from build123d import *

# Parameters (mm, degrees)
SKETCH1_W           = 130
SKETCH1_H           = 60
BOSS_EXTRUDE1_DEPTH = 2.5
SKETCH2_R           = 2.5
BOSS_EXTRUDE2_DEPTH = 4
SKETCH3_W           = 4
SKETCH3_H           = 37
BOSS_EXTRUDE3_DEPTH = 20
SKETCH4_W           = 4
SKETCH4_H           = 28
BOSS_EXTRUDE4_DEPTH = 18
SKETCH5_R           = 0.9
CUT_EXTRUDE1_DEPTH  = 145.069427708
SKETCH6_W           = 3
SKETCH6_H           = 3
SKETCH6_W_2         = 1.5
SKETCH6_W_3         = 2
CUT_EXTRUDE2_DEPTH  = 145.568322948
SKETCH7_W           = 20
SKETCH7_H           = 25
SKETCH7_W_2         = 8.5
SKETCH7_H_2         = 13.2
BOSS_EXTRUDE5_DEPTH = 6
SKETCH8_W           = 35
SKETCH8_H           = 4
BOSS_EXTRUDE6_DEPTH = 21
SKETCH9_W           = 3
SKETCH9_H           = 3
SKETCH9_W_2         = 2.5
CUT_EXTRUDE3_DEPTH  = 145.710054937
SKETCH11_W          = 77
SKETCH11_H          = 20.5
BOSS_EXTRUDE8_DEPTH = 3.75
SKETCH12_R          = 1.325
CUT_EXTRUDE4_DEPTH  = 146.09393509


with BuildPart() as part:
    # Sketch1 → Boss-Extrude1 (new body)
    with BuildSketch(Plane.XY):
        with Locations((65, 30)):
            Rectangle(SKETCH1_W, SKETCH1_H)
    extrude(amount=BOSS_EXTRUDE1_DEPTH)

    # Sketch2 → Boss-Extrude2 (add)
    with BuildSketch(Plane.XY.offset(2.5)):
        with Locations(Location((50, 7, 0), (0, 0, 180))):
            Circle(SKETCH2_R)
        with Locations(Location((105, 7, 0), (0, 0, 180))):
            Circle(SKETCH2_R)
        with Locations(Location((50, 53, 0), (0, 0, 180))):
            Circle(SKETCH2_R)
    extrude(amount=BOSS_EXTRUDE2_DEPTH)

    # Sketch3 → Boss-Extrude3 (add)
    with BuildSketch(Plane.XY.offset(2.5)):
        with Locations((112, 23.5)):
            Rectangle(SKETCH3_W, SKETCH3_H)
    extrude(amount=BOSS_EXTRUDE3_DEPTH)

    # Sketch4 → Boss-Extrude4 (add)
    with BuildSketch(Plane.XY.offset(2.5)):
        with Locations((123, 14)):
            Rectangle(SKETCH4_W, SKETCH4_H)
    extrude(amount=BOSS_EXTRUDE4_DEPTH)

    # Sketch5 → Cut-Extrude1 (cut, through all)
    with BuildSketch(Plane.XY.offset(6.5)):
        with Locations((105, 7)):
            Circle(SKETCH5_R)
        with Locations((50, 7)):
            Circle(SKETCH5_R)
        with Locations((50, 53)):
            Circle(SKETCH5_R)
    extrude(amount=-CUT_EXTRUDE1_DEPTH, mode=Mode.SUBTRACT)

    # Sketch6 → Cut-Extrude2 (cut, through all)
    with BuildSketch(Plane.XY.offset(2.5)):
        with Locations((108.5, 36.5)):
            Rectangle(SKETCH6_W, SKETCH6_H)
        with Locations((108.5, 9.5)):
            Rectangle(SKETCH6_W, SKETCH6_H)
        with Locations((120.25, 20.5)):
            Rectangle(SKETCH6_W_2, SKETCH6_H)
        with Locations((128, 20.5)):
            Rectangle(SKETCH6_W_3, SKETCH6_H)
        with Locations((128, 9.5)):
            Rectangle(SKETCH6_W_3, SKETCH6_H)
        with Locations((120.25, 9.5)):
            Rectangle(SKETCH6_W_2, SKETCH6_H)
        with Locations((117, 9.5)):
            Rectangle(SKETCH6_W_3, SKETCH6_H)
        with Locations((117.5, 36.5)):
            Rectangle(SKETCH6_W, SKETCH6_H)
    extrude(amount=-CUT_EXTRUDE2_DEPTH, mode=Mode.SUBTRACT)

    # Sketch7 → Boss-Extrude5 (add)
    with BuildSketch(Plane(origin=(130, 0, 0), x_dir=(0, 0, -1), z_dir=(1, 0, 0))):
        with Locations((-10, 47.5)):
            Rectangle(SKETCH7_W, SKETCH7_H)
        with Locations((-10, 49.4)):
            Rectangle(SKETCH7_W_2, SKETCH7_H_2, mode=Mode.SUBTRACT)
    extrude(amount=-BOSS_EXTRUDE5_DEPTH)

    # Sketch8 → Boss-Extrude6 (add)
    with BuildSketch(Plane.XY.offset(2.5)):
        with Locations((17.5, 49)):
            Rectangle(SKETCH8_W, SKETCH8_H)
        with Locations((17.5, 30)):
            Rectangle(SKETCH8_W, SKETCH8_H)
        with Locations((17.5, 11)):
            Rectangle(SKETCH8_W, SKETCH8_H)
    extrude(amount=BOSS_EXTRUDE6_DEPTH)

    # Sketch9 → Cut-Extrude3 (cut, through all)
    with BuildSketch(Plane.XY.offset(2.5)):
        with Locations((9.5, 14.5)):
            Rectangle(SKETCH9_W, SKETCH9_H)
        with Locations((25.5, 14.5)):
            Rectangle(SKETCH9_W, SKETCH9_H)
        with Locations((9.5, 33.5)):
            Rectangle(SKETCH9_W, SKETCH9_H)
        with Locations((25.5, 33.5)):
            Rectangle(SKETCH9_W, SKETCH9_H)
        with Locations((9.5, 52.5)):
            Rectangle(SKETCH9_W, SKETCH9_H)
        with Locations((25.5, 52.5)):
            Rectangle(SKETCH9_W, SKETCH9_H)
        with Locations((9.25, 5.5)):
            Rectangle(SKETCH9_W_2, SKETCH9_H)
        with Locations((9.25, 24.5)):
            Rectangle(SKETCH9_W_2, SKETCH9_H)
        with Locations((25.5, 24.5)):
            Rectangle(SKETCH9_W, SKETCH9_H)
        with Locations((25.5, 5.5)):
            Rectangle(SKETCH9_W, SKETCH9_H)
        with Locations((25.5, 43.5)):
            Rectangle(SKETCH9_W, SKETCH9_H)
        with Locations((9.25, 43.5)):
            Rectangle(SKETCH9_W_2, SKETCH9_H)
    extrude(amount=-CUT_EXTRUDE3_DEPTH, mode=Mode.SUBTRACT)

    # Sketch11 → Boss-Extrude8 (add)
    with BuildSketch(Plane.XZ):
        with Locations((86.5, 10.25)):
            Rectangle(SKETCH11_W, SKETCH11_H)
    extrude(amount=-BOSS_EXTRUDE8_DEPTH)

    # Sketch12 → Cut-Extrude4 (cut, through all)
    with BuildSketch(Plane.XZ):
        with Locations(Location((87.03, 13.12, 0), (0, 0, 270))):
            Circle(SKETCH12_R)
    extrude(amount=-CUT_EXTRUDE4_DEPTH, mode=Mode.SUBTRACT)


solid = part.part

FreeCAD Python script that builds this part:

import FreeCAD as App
import Part
import Sketcher

V = App.Vector

doc = App.newDocument("Part")
body = doc.addObject("PartDesign::Body", "Body")

sketch1 = body.newObject("Sketcher::SketchObject", "Sketch")
sketch1.AttachmentSupport = (doc.getObject("XY_Plane"), [""])
sketch1.MapMode = "FlatFace"
sketch1.addGeometry(Part.LineSegment(V(0, 60, 0), V(0, 0, 0)), False)
sketch1.addGeometry(Part.LineSegment(V(0, 0, 0), V(130, 0, 0)), False)
sketch1.addGeometry(Part.LineSegment(V(130, 0, 0), V(130, 60, 0)), False)
sketch1.addGeometry(Part.LineSegment(V(130, 60, 0), V(0, 60, 0)), False)
sketch1.addConstraint(Sketcher.Constraint("Coincident", 0, 2, 1, 1))
sketch1.addConstraint(Sketcher.Constraint("Coincident", 1, 2, 2, 1))
sketch1.addConstraint(Sketcher.Constraint("Coincident", 2, 2, 3, 1))
sketch1.addConstraint(Sketcher.Constraint("Coincident", 3, 2, 0, 1))
sketch1.addConstraint(Sketcher.Constraint("Vertical", 0))
sketch1.addConstraint(Sketcher.Constraint("Horizontal", 1))
sketch1.addConstraint(Sketcher.Constraint("Vertical", 2))
sketch1.addConstraint(Sketcher.Constraint("Horizontal", 3))
sketch1.addConstraint(Sketcher.Constraint("Coincident", 0, 2, -1, 1))
sketch1.addConstraint(Sketcher.Constraint("DistanceX", 1, 1, 1, 2, 130.0))
sketch1.addConstraint(Sketcher.Constraint("DistanceY", 0, 2, 0, 1, 60.0))
pad1 = body.newObject("PartDesign::Pad", "Pad")
pad1.Profile = sketch1
pad1.Length = 2.5

sketch2 = body.newObject("Sketcher::SketchObject", "Sketch001")
sketch2.AttachmentSupport = (doc.getObject("XY_Plane"), [""])
sketch2.MapMode = "FlatFace"
sketch2.AttachmentOffset = App.Placement(V(0, 0, 2.5), App.Rotation())
sketch2.addGeometry(Part.Circle(V(50, 7, 0), V(0, 0, 1), 2.5), False)
sketch2.addGeometry(Part.Circle(V(105, 7, 0), V(0, 0, 1), 2.5), False)
sketch2.addGeometry(Part.Circle(V(50, 53, 0), V(0, 0, 1), 2.5), False)
sketch2.addConstraint(Sketcher.Constraint("Equal", 0, 1))
sketch2.addConstraint(Sketcher.Constraint("Equal", 1, 2))
sketch2.addConstraint(Sketcher.Constraint("Horizontal", 0, 3, 1, 3))
sketch2.addConstraint(Sketcher.Constraint("Vertical", 0, 3, 2, 3))
sketch2.addConstraint(Sketcher.Constraint("Diameter", 0, 5.0))
sketch2.addConstraint(Sketcher.Constraint("DistanceX", -1, 1, 0, 3, 50.0))
sketch2.addConstraint(Sketcher.Constraint("DistanceY", -1, 1, 0, 3, 7.0))
sketch2.addConstraint(Sketcher.Constraint("DistanceX", -1, 1, 1, 3, 105.0))
sketch2.addConstraint(Sketcher.Constraint("DistanceY", -1, 1, 2, 3, 53.0))
pad2 = body.newObject("PartDesign::Pad", "Pad001")
pad2.Profile = sketch2
pad2.Length = 4

sketch3 = body.newObject("Sketcher::SketchObject", "Sketch002")
sketch3.AttachmentSupport = (doc.getObject("XY_Plane"), [""])
sketch3.MapMode = "FlatFace"
sketch3.AttachmentOffset = App.Placement(V(0, 0, 2.5), App.Rotation())
sketch3.addGeometry(Part.LineSegment(V(110, 42, 0), V(110, 5, 0)), False)
sketch3.addGeometry(Part.LineSegment(V(110, 5, 0), V(114, 5, 0)), False)
sketch3.addGeometry(Part.LineSegment(V(114, 5, 0), V(114, 42, 0)), False)
sketch3.addGeometry(Part.LineSegment(V(114, 42, 0), V(110, 42, 0)), False)
sketch3.addConstraint(Sketcher.Constraint("Coincident", 0, 2, 1, 1))
sketch3.addConstraint(Sketcher.Constraint("Coincident", 1, 2, 2, 1))
sketch3.addConstraint(Sketcher.Constraint("Coincident", 2, 2, 3, 1))
sketch3.addConstraint(Sketcher.Constraint("Coincident", 3, 2, 0, 1))
sketch3.addConstraint(Sketcher.Constraint("Vertical", 0))
sketch3.addConstraint(Sketcher.Constraint("Horizontal", 1))
sketch3.addConstraint(Sketcher.Constraint("Vertical", 2))
sketch3.addConstraint(Sketcher.Constraint("Horizontal", 3))
sketch3.addConstraint(Sketcher.Constraint("DistanceX", 1, 1, 1, 2, 4.0))
sketch3.addConstraint(Sketcher.Constraint("DistanceY", 0, 2, 0, 1, 37.0))
sketch3.addConstraint(Sketcher.Constraint("DistanceX", -1, 1, 0, 2, 110.0))
sketch3.addConstraint(Sketcher.Constraint("DistanceY", -1, 1, 0, 2, 5.0))
pad3 = body.newObject("PartDesign::Pad", "Pad002")
pad3.Profile = sketch3
pad3.Length = 20

sketch4 = body.newObject("Sketcher::SketchObject", "Sketch003")
sketch4.AttachmentSupport = (doc.getObject("XY_Plane"), [""])
sketch4.MapMode = "FlatFace"
sketch4.AttachmentOffset = App.Placement(V(0, 0, 2.5), App.Rotation())
sketch4.addGeometry(Part.LineSegment(V(121, 28, 0), V(121, 0, 0)), False)
sketch4.addGeometry(Part.LineSegment(V(121, 0, 0), V(125, 0, 0)), False)
sketch4.addGeometry(Part.LineSegment(V(125, 0, 0), V(125, 28, 0)), False)
sketch4.addGeometry(Part.LineSegment(V(125, 28, 0), V(121, 28, 0)), False)
sketch4.addConstraint(Sketcher.Constraint("Coincident", 0, 2, 1, 1))
sketch4.addConstraint(Sketcher.Constraint("Coincident", 1, 2, 2, 1))
sketch4.addConstraint(Sketcher.Constraint("Coincident", 2, 2, 3, 1))
sketch4.addConstraint(Sketcher.Constraint("Coincident", 3, 2, 0, 1))
sketch4.addConstraint(Sketcher.Constraint("Vertical", 0))
sketch4.addConstraint(Sketcher.Constraint("Horizontal", 1))
sketch4.addConstraint(Sketcher.Constraint("Vertical", 2))
sketch4.addConstraint(Sketcher.Constraint("Horizontal", 3))
sketch4.addConstraint(Sketcher.Constraint("PointOnObject", 0, 2, -1))
sketch4.addConstraint(Sketcher.Constraint("DistanceX", 1, 1, 1, 2, 4.0))
sketch4.addConstraint(Sketcher.Constraint("DistanceY", 0, 2, 0, 1, 28.0))
sketch4.addConstraint(Sketcher.Constraint("DistanceX", -1, 1, 0, 2, 121.0))
pad4 = body.newObject("PartDesign::Pad", "Pad003")
pad4.Profile = sketch4
pad4.Length = 18

sketch5 = body.newObject("Sketcher::SketchObject", "Sketch004")
sketch5.AttachmentSupport = (doc.getObject("XY_Plane"), [""])
sketch5.MapMode = "FlatFace"
sketch5.AttachmentOffset = App.Placement(V(0, 0, 6.5), App.Rotation())
sketch5.addGeometry(Part.Circle(V(105, 7, 0), V(0, 0, 1), 0.9), False)
sketch5.addGeometry(Part.Circle(V(50, 7, 0), V(0, 0, 1), 0.9), False)
sketch5.addGeometry(Part.Circle(V(50, 53, 0), V(0, 0, 1), 0.9), False)
sketch5.addConstraint(Sketcher.Constraint("Equal", 0, 1))
sketch5.addConstraint(Sketcher.Constraint("Equal", 1, 2))
sketch5.addConstraint(Sketcher.Constraint("Horizontal", 0, 3, 1, 3))
sketch5.addConstraint(Sketcher.Constraint("Vertical", 1, 3, 2, 3))
sketch5.addConstraint(Sketcher.Constraint("Diameter", 0, 1.8))
sketch5.addConstraint(Sketcher.Constraint("DistanceX", -1, 1, 0, 3, 105.0))
sketch5.addConstraint(Sketcher.Constraint("DistanceY", -1, 1, 0, 3, 7.0))
sketch5.addConstraint(Sketcher.Constraint("DistanceX", -1, 1, 1, 3, 50.0))
sketch5.addConstraint(Sketcher.Constraint("DistanceY", -1, 1, 2, 3, 53.0))
pocket1 = body.newObject("PartDesign::Pocket", "Pocket")
pocket1.Profile = sketch5
pocket1.Type = "ThroughAll"

sketch6 = body.newObject("Sketcher::SketchObject", "Sketch005")
sketch6.AttachmentSupport = (doc.getObject("XY_Plane"), [""])
sketch6.MapMode = "FlatFace"
sketch6.AttachmentOffset = App.Placement(V(0, 0, 2.5), App.Rotation())
sketch6.addGeometry(Part.LineSegment(V(107, 38, 0), V(107, 35, 0)), False)
sketch6.addGeometry(Part.LineSegment(V(107, 35, 0), V(110, 35, 0)), False)
sketch6.addGeometry(Part.LineSegment(V(110, 35, 0), V(110, 38, 0)), False)
sketch6.addGeometry(Part.LineSegment(V(110, 38, 0), V(107, 38, 0)), False)
sketch6.addGeometry(Part.LineSegment(V(107, 11, 0), V(107, 8, 0)), False)
sketch6.addGeometry(Part.LineSegment(V(107, 8, 0), V(110, 8, 0)), False)
sketch6.addGeometry(Part.LineSegment(V(110, 8, 0), V(110, 11, 0)), False)
sketch6.addGeometry(Part.LineSegment(V(110, 11, 0), V(107, 11, 0)), False)
sketch6.addGeometry(Part.LineSegment(V(119.5, 22, 0), V(119.5, 19, 0)), False)
sketch6.addGeometry(Part.LineSegment(V(119.5, 19, 0), V(121, 19, 0)), False)
sketch6.addGeometry(Part.LineSegment(V(121, 19, 0), V(121, 22, 0)), False)
sketch6.addGeometry(Part.LineSegment(V(121, 22, 0), V(119.5, 22, 0)), False)
sketch6.addGeometry(Part.LineSegment(V(127, 22, 0), V(127, 19, 0)), False)
sketch6.addGeometry(Part.LineSegment(V(127, 19, 0), V(129, 19, 0)), False)
sketch6.addGeometry(Part.LineSegment(V(129, 19, 0), V(129, 22, 0)), False)
sketch6.addGeometry(Part.LineSegment(V(129, 22, 0), V(127, 22, 0)), False)
sketch6.addGeometry(Part.LineSegment(V(127, 11, 0), V(127, 8, 0)), False)
sketch6.addGeometry(Part.LineSegment(V(127, 8, 0), V(129, 8, 0)), False)
sketch6.addGeometry(Part.LineSegment(V(129, 8, 0), V(129, 11, 0)), False)
sketch6.addGeometry(Part.LineSegment(V(129, 11, 0), V(127, 11, 0)), False)
sketch6.addGeometry(Part.LineSegment(V(119.5, 11, 0), V(119.5, 8, 0)), False)
sketch6.addGeometry(Part.LineSegment(V(119.5, 8, 0), V(121, 8, 0)), False)
sketch6.addGeometry(Part.LineSegment(V(121, 8, 0), V(121, 11, 0)), False)
sketch6.addGeometry(Part.LineSegment(V(121, 11, 0), V(119.5, 11, 0)), False)
sketch6.addGeometry(Part.LineSegment(V(116, 11, 0), V(116, 8, 0)), False)
sketch6.addGeometry(Part.LineSegment(V(116, 8, 0), V(118, 8, 0)), False)
sketch6.addGeometry(Part.LineSegment(V(118, 8, 0), V(118, 11, 0)), False)
sketch6.addGeometry(Part.LineSegment(V(118, 11, 0), V(116, 11, 0)), False)
sketch6.addGeometry(Part.LineSegment(V(116, 38, 0), V(116, 35, 0)), False)
sketch6.addGeometry(Part.LineSegment(V(116, 35, 0), V(119, 35, 0)), False)
sketch6.addGeometry(Part.LineSegment(V(119, 35, 0), V(119, 38, 0)), False)
sketch6.addGeometry(Part.LineSegment(V(119, 38, 0), V(116, 38, 0)), False)
sketch6.addConstraint(Sketcher.Constraint("Coincident", 0, 2, 1, 1))
sketch6.addConstraint(Sketcher.Constraint("Coincident", 1, 2, 2, 1))
sketch6.addConstraint(Sketcher.Constraint("Coincident", 2, 2, 3, 1))
sketch6.addConstraint(Sketcher.Constraint("Coincident", 3, 2, 0, 1))
sketch6.addConstraint(Sketcher.Constraint("Coincident", 4, 2, 5, 1))
sketch6.addConstraint(Sketcher.Constraint("Coincident", 5, 2, 6, 1))
sketch6.addConstraint(Sketcher.Constraint("Coincident", 6, 2, 7, 1))
sketch6.addConstraint(Sketcher.Constraint("Coincident", 7, 2, 4, 1))
sketch6.addConstraint(Sketcher.Constraint("Coincident", 8, 2, 9, 1))
sketch6.addConstraint(Sketcher.Constraint("Coincident", 9, 2, 10, 1))
sketch6.addConstraint(Sketcher.Constraint("Coincident", 10, 2, 11, 1))
sketch6.addConstraint(Sketcher.Constraint("Coincident", 11, 2, 8, 1))
sketch6.addConstraint(Sketcher.Constraint("Coincident", 12, 2, 13, 1))
sketch6.addConstraint(Sketcher.Constraint("Coincident", 13, 2, 14, 1))
sketch6.addConstraint(Sketcher.Constraint("Coincident", 14, 2, 15, 1))
sketch6.addConstraint(Sketcher.Constraint("Coincident", 15, 2, 12, 1))
sketch6.addConstraint(Sketcher.Constraint("Coincident", 16, 2, 17, 1))
sketch6.addConstraint(Sketcher.Constraint("Coincident", 17, 2, 18, 1))
sketch6.addConstraint(Sketcher.Constraint("Coincident", 18, 2, 19, 1))
sketch6.addConstraint(Sketcher.Constraint("Coincident", 19, 2, 16, 1))
sketch6.addConstraint(Sketcher.Constraint("Coincident", 20, 2, 21, 1))
sketch6.addConstraint(Sketcher.Constraint("Coincident", 21, 2, 22, 1))
sketch6.addConstraint(Sketcher.Constraint("Coincident", 22, 2, 23, 1))
sketch6.addConstraint(Sketcher.Constraint("Coincident", 23, 2, 20, 1))
sketch6.addConstraint(Sketcher.Constraint("Coincident", 24, 2, 25, 1))
sketch6.addConstraint(Sketcher.Constraint("Coincident", 25, 2, 26, 1))
sketch6.addConstraint(Sketcher.Constraint("Coincident", 26, 2, 27, 1))
sketch6.addConstraint(Sketcher.Constraint("Coincident", 27, 2, 24, 1))
sketch6.addConstraint(Sketcher.Constraint("Coincident", 28, 2, 29, 1))
sketch6.addConstraint(Sketcher.Constraint("Coincident", 29, 2, 30, 1))
sketch6.addConstraint(Sketcher.Constraint("Coincident", 30, 2, 31, 1))
sketch6.addConstraint(Sketcher.Constraint("Coincident", 31, 2, 28, 1))
sketch6.addConstraint(Sketcher.Constraint("Vertical", 0))
sketch6.addConstraint(Sketcher.Constraint("Horizontal", 1))
sketch6.addConstraint(Sketcher.Constraint("Vertical", 2))
sketch6.addConstraint(Sketcher.Constraint("Horizontal", 3))
sketch6.addConstraint(Sketcher.Constraint("Vertical", 4))
sketch6.addConstraint(Sketcher.Constraint("Horizontal", 5))
sketch6.addConstraint(Sketcher.Constraint("Vertical", 6))
sketch6.addConstraint(Sketcher.Constraint("Horizontal", 7))
sketch6.addConstraint(Sketcher.Constraint("Vertical", 8))
sketch6.addConstraint(Sketcher.Constraint("Horizontal", 9))
sketch6.addConstraint(Sketcher.Constraint("Vertical", 10))
sketch6.addConstraint(Sketcher.Constraint("Horizontal", 11))
sketch6.addConstraint(Sketcher.Constraint("Vertical", 12))
sketch6.addConstraint(Sketcher.Constraint("Horizontal", 13))
sketch6.addConstraint(Sketcher.Constraint("Vertical", 14))
sketch6.addConstraint(Sketcher.Constraint("Horizontal", 15))
sketch6.addConstraint(Sketcher.Constraint("Vertical", 16))
sketch6.addConstraint(Sketcher.Constraint("Horizontal", 17))
sketch6.addConstraint(Sketcher.Constraint("Vertical", 18))
sketch6.addConstraint(Sketcher.Constraint("Horizontal", 19))
sketch6.addConstraint(Sketcher.Constraint("Vertical", 20))
sketch6.addConstraint(Sketcher.Constraint("Horizontal", 21))
sketch6.addConstraint(Sketcher.Constraint("Vertical", 22))
sketch6.addConstraint(Sketcher.Constraint("Horizontal", 23))
sketch6.addConstraint(Sketcher.Constraint("Vertical", 24))
sketch6.addConstraint(Sketcher.Constraint("Horizontal", 25))
sketch6.addConstraint(Sketcher.Constraint("Vertical", 26))
sketch6.addConstraint(Sketcher.Constraint("Horizontal", 27))
sketch6.addConstraint(Sketcher.Constraint("Vertical", 28))
sketch6.addConstraint(Sketcher.Constraint("Horizontal", 29))
sketch6.addConstraint(Sketcher.Constraint("Vertical", 30))
sketch6.addConstraint(Sketcher.Constraint("Horizontal", 31))
sketch6.addConstraint(Sketcher.Constraint("Horizontal", 9, 2, 12, 2))
sketch6.addConstraint(Sketcher.Constraint("Horizontal", 11, 2, 14, 2))
sketch6.addConstraint(Sketcher.Constraint("Horizontal", 5, 2, 16, 2))
sketch6.addConstraint(Sketcher.Constraint("Horizontal", 7, 2, 18, 2))
sketch6.addConstraint(Sketcher.Constraint("Horizontal", 17, 2, 20, 2))
sketch6.addConstraint(Sketcher.Constraint("Horizontal", 19, 2, 22, 2))
sketch6.addConstraint(Sketcher.Constraint("Horizontal", 21, 2, 24, 2))
sketch6.addConstraint(Sketcher.Constraint("Horizontal", 23, 2, 26, 2))
sketch6.addConstraint(Sketcher.Constraint("Horizontal", 1, 2, 28, 2))
sketch6.addConstraint(Sketcher.Constraint("Horizontal", 3, 2, 30, 2))
sketch6.addConstraint(Sketcher.Constraint("Vertical", 3, 2, 4, 2))
sketch6.addConstraint(Sketcher.Constraint("Vertical", 2, 2, 5, 2))
sketch6.addConstraint(Sketcher.Constraint("Vertical", 15, 2, 16, 2))
sketch6.addConstraint(Sketcher.Constraint("Vertical", 14, 2, 17, 2))
sketch6.addConstraint(Sketcher.Constraint("Vertical", 11, 2, 20, 2))
sketch6.addConstraint(Sketcher.Constraint("Vertical", 10, 2, 21, 2))
sketch6.addConstraint(Sketcher.Constraint("Vertical", 27, 2, 28, 2))
sketch6.addConstraint(Sketcher.Constraint("Equal", 19, 25))
sketch6.addConstraint(Sketcher.Constraint("Equal", 7, 29))
sketch6.addConstraint(Sketcher.Constraint("Equal", 31, 0))
sketch6.addConstraint(Sketcher.Constraint("Equal", 2, 4))
sketch6.addConstraint(Sketcher.Constraint("Equal", 6, 8))
sketch6.addConstraint(Sketcher.Constraint("DistanceX", 1, 1, 1, 2, 3.0))
sketch6.addConstraint(Sketcher.Constraint("DistanceX", 13, 1, 13, 2, 2.0))
sketch6.addConstraint(Sketcher.Constraint("DistanceX", 9, 1, 9, 2, 1.5))
sketch6.addConstraint(Sketcher.Constraint("DistanceX", -1, 1, 0, 2, 107.0))
sketch6.addConstraint(Sketcher.Constraint("DistanceY", -1, 1, 0, 2, 35.0))
sketch6.addConstraint(Sketcher.Constraint("DistanceY", -1, 1, 4, 2, 8.0))
sketch6.addConstraint(Sketcher.Constraint("DistanceY", -1, 1, 8, 2, 19.0))
sketch6.addConstraint(Sketcher.Constraint("DistanceX", -1, 1, 9, 2, 121.0))
sketch6.addConstraint(Sketcher.Constraint("DistanceX", -1, 1, 12, 2, 127.0))
sketch6.addConstraint(Sketcher.Constraint("DistanceX", -1, 1, 24, 2, 116.0))
pocket2 = body.newObject("PartDesign::Pocket", "Pocket001")
pocket2.Profile = sketch6
pocket2.Type = "ThroughAll"

sketch7 = body.newObject("Sketcher::SketchObject", "Sketch006")
sketch7.AttachmentSupport = (doc.getObject("YZ_Plane"), [""])
sketch7.MapMode = "FlatFace"
sketch7.AttachmentOffset = App.Placement(V(0, 0, 130), App.Rotation())
sketch7.addGeometry(Part.LineSegment(V(60, 20, 0), V(35, 20, 0)), False)
sketch7.addGeometry(Part.LineSegment(V(35, 20, 0), V(35, 0, 0)), False)
sketch7.addGeometry(Part.LineSegment(V(35, 0, 0), V(60, 0, 0)), False)
sketch7.addGeometry(Part.LineSegment(V(60, 0, 0), V(60, 20, 0)), False)
sketch7.addGeometry(Part.LineSegment(V(43, 6, 0), V(43, 14, 0)), False)
sketch7.addGeometry(Part.LineSegment(V(43, 14, 0), V(56, 14, 0)), False)
sketch7.addGeometry(Part.LineSegment(V(56, 14, 0), V(56, 6, 0)), False)
sketch7.addGeometry(Part.LineSegment(V(56, 6, 0), V(43, 6, 0)), False)
sketch7.addConstraint(Sketcher.Constraint("Coincident", 0, 2, 1, 1))
sketch7.addConstraint(Sketcher.Constraint("Coincident", 1, 2, 2, 1))
sketch7.addConstraint(Sketcher.Constraint("Coincident", 2, 2, 3, 1))
sketch7.addConstraint(Sketcher.Constraint("Coincident", 3, 2, 0, 1))
sketch7.addConstraint(Sketcher.Constraint("Coincident", 4, 2, 5, 1))
sketch7.addConstraint(Sketcher.Constraint("Coincident", 5, 2, 6, 1))
sketch7.addConstraint(Sketcher.Constraint("Coincident", 6, 2, 7, 1))
sketch7.addConstraint(Sketcher.Constraint("Coincident", 7, 2, 4, 1))
sketch7.addConstraint(Sketcher.Constraint("Horizontal", 0))
sketch7.addConstraint(Sketcher.Constraint("Vertical", 1))
sketch7.addConstraint(Sketcher.Constraint("Horizontal", 2))
sketch7.addConstraint(Sketcher.Constraint("Vertical", 3))
sketch7.addConstraint(Sketcher.Constraint("Vertical", 4))
sketch7.addConstraint(Sketcher.Constraint("Horizontal", 5))
sketch7.addConstraint(Sketcher.Constraint("Vertical", 6))
sketch7.addConstraint(Sketcher.Constraint("Horizontal", 7))
sketch7.addConstraint(Sketcher.Constraint("PointOnObject", 1, 2, -1))
sketch7.addConstraint(Sketcher.Constraint("DistanceX", 0, 2, 0, 1, 25.0))
sketch7.addConstraint(Sketcher.Constraint("DistanceY", 1, 2, 1, 1, 20.0))
sketch7.addConstraint(Sketcher.Constraint("DistanceX", 5, 1, 5, 2, 13.2))
sketch7.addConstraint(Sketcher.Constraint("DistanceY", 4, 1, 4, 2, 8.5))
sketch7.addConstraint(Sketcher.Constraint("DistanceX", -1, 1, 0, 2, 35.0))
sketch7.addConstraint(Sketcher.Constraint("DistanceX", -1, 1, 5, 2, 56.0))
sketch7.addConstraint(Sketcher.Constraint("DistanceY", -1, 1, 4, 2, 14.25))
pad5 = body.newObject("PartDesign::Pad", "Pad004")
pad5.Profile = sketch7
pad5.Length = 6
pad5.Reversed = True

sketch8 = body.newObject("Sketcher::SketchObject", "Sketch007")
sketch8.AttachmentSupport = (doc.getObject("XY_Plane"), [""])
sketch8.MapMode = "FlatFace"
sketch8.AttachmentOffset = App.Placement(V(0, 0, 2.5), App.Rotation())
sketch8.addGeometry(Part.LineSegment(V(0, 51, 0), V(0, 47, 0)), False)
sketch8.addGeometry(Part.LineSegment(V(0, 47, 0), V(35, 47, 0)), False)
sketch8.addGeometry(Part.LineSegment(V(35, 47, 0), V(35, 51, 0)), False)
sketch8.addGeometry(Part.LineSegment(V(35, 51, 0), V(0, 51, 0)), False)
sketch8.addGeometry(Part.LineSegment(V(0, 32, 0), V(0, 28, 0)), False)
sketch8.addGeometry(Part.LineSegment(V(0, 28, 0), V(35, 28, 0)), False)
sketch8.addGeometry(Part.LineSegment(V(35, 28, 0), V(35, 32, 0)), False)
sketch8.addGeometry(Part.LineSegment(V(35, 32, 0), V(0, 32, 0)), False)
sketch8.addGeometry(Part.LineSegment(V(0, 13, 0), V(0, 9, 0)), False)
sketch8.addGeometry(Part.LineSegment(V(0, 9, 0), V(35, 9, 0)), False)
sketch8.addGeometry(Part.LineSegment(V(35, 9, 0), V(35, 13, 0)), False)
sketch8.addGeometry(Part.LineSegment(V(35, 13, 0), V(0, 13, 0)), False)
sketch8.addConstraint(Sketcher.Constraint("Coincident", 0, 2, 1, 1))
sketch8.addConstraint(Sketcher.Constraint("Coincident", 1, 2, 2, 1))
sketch8.addConstraint(Sketcher.Constraint("Coincident", 2, 2, 3, 1))
sketch8.addConstraint(Sketcher.Constraint("Coincident", 3, 2, 0, 1))
sketch8.addConstraint(Sketcher.Constraint("Coincident", 4, 2, 5, 1))
sketch8.addConstraint(Sketcher.Constraint("Coincident", 5, 2, 6, 1))
sketch8.addConstraint(Sketcher.Constraint("Coincident", 6, 2, 7, 1))
sketch8.addConstraint(Sketcher.Constraint("Coincident", 7, 2, 4, 1))
sketch8.addConstraint(Sketcher.Constraint("Coincident", 8, 2, 9, 1))
sketch8.addConstraint(Sketcher.Constraint("Coincident", 9, 2, 10, 1))
sketch8.addConstraint(Sketcher.Constraint("Coincident", 10, 2, 11, 1))
sketch8.addConstraint(Sketcher.Constraint("Coincident", 11, 2, 8, 1))
sketch8.addConstraint(Sketcher.Constraint("Vertical", 0))
sketch8.addConstraint(Sketcher.Constraint("Horizontal", 1))
sketch8.addConstraint(Sketcher.Constraint("Vertical", 2))
sketch8.addConstraint(Sketcher.Constraint("Horizontal", 3))
sketch8.addConstraint(Sketcher.Constraint("Vertical", 4))
sketch8.addConstraint(Sketcher.Constraint("Horizontal", 5))
sketch8.addConstraint(Sketcher.Constraint("Vertical", 6))
sketch8.addConstraint(Sketcher.Constraint("Horizontal", 7))
sketch8.addConstraint(Sketcher.Constraint("Vertical", 8))
sketch8.addConstraint(Sketcher.Constraint("Horizontal", 9))
sketch8.addConstraint(Sketcher.Constraint("Vertical", 10))
sketch8.addConstraint(Sketcher.Constraint("Horizontal", 11))
sketch8.addConstraint(Sketcher.Constraint("PointOnObject", 0, 2, -2))
sketch8.addConstraint(Sketcher.Constraint("PointOnObject", 4, 2, -2))
sketch8.addConstraint(Sketcher.Constraint("PointOnObject", 8, 2, -2))
sketch8.addConstraint(Sketcher.Constraint("Vertical", 2, 2, 5, 2))
sketch8.addConstraint(Sketcher.Constraint("Vertical", 6, 2, 9, 2))
sketch8.addConstraint(Sketcher.Constraint("Equal", 2, 4))
sketch8.addConstraint(Sketcher.Constraint("Equal", 6, 8))
sketch8.addConstraint(Sketcher.Constraint("DistanceX", 1, 1, 1, 2, 35.0))
sketch8.addConstraint(Sketcher.Constraint("DistanceY", 0, 2, 0, 1, 4.0))
sketch8.addConstraint(Sketcher.Constraint("DistanceY", -1, 1, 0, 2, 47.0))
sketch8.addConstraint(Sketcher.Constraint("DistanceY", -1, 1, 4, 2, 28.0))
sketch8.addConstraint(Sketcher.Constraint("DistanceY", -1, 1, 8, 2, 9.0))
pad6 = body.newObject("PartDesign::Pad", "Pad005")
pad6.Profile = sketch8
pad6.Length = 21

sketch9 = body.newObject("Sketcher::SketchObject", "Sketch008")
sketch9.AttachmentSupport = (doc.getObject("XY_Plane"), [""])
sketch9.MapMode = "FlatFace"
sketch9.AttachmentOffset = App.Placement(V(0, 0, 2.5), App.Rotation())
sketch9.addGeometry(Part.LineSegment(V(8, 16, 0), V(8, 13, 0)), False)
sketch9.addGeometry(Part.LineSegment(V(8, 13, 0), V(11, 13, 0)), False)
sketch9.addGeometry(Part.LineSegment(V(11, 13, 0), V(11, 16, 0)), False)
sketch9.addGeometry(Part.LineSegment(V(11, 16, 0), V(8, 16, 0)), False)
sketch9.addGeometry(Part.LineSegment(V(24, 16, 0), V(24, 13, 0)), False)
sketch9.addGeometry(Part.LineSegment(V(24, 13, 0), V(27, 13, 0)), False)
sketch9.addGeometry(Part.LineSegment(V(27, 13, 0), V(27, 16, 0)), False)
sketch9.addGeometry(Part.LineSegment(V(27, 16, 0), V(24, 16, 0)), False)
sketch9.addGeometry(Part.LineSegment(V(8, 35, 0), V(8, 32, 0)), False)
sketch9.addGeometry(Part.LineSegment(V(8, 32, 0), V(11, 32, 0)), False)
sketch9.addGeometry(Part.LineSegment(V(11, 32, 0), V(11, 35, 0)), False)
sketch9.addGeometry(Part.LineSegment(V(11, 35, 0), V(8, 35, 0)), False)
sketch9.addGeometry(Part.LineSegment(V(24, 35, 0), V(24, 32, 0)), False)
sketch9.addGeometry(Part.LineSegment(V(24, 32, 0), V(27, 32, 0)), False)
sketch9.addGeometry(Part.LineSegment(V(27, 32, 0), V(27, 35, 0)), False)
sketch9.addGeometry(Part.LineSegment(V(27, 35, 0), V(24, 35, 0)), False)
sketch9.addGeometry(Part.LineSegment(V(8, 54, 0), V(8, 51, 0)), False)
sketch9.addGeometry(Part.LineSegment(V(8, 51, 0), V(11, 51, 0)), False)
sketch9.addGeometry(Part.LineSegment(V(11, 51, 0), V(11, 54, 0)), False)
sketch9.addGeometry(Part.LineSegment(V(11, 54, 0), V(8, 54, 0)), False)
sketch9.addGeometry(Part.LineSegment(V(24, 54, 0), V(24, 51, 0)), False)
sketch9.addGeometry(Part.LineSegment(V(24, 51, 0), V(27, 51, 0)), False)
sketch9.addGeometry(Part.LineSegment(V(27, 51, 0), V(27, 54, 0)), False)
sketch9.addGeometry(Part.LineSegment(V(27, 54, 0), V(24, 54, 0)), False)
sketch9.addGeometry(Part.LineSegment(V(8, 7, 0), V(8, 4, 0)), False)
sketch9.addGeometry(Part.LineSegment(V(8, 4, 0), V(10.5, 4, 0)), False)
sketch9.addGeometry(Part.LineSegment(V(10.5, 4, 0), V(10.5, 7, 0)), False)
sketch9.addGeometry(Part.LineSegment(V(10.5, 7, 0), V(8, 7, 0)), False)
sketch9.addGeometry(Part.LineSegment(V(8, 26, 0), V(8, 23, 0)), False)
sketch9.addGeometry(Part.LineSegment(V(8, 23, 0), V(10.5, 23, 0)), False)
sketch9.addGeometry(Part.LineSegment(V(10.5, 23, 0), V(10.5, 26, 0)), False)
sketch9.addGeometry(Part.LineSegment(V(10.5, 26, 0), V(8, 26, 0)), False)
sketch9.addGeometry(Part.LineSegment(V(24, 26, 0), V(24, 23, 0)), False)
sketch9.addGeometry(Part.LineSegment(V(24, 23, 0), V(27, 23, 0)), False)
sketch9.addGeometry(Part.LineSegment(V(27, 23, 0), V(27, 26, 0)), False)
sketch9.addGeometry(Part.LineSegment(V(27, 26, 0), V(24, 26, 0)), False)
sketch9.addGeometry(Part.LineSegment(V(24, 7, 0), V(24, 4, 0)), False)
sketch9.addGeometry(Part.LineSegment(V(24, 4, 0), V(27, 4, 0)), False)
sketch9.addGeometry(Part.LineSegment(V(27, 4, 0), V(27, 7, 0)), False)
sketch9.addGeometry(Part.LineSegment(V(27, 7, 0), V(24, 7, 0)), False)
sketch9.addGeometry(Part.LineSegment(V(24, 45, 0), V(24, 42, 0)), False)
sketch9.addGeometry(Part.LineSegment(V(24, 42, 0), V(27, 42, 0)), False)
sketch9.addGeometry(Part.LineSegment(V(27, 42, 0), V(27, 45, 0)), False)
sketch9.addGeometry(Part.LineSegment(V(27, 45, 0), V(24, 45, 0)), False)
sketch9.addGeometry(Part.LineSegment(V(8, 45, 0), V(8, 42, 0)), False)
sketch9.addGeometry(Part.LineSegment(V(8, 42, 0), V(10.5, 42, 0)), False)
sketch9.addGeometry(Part.LineSegment(V(10.5, 42, 0), V(10.5, 45, 0)), False)
sketch9.addGeometry(Part.LineSegment(V(10.5, 45, 0), V(8, 45, 0)), False)
sketch9.addConstraint(Sketcher.Constraint("Coincident", 0, 2, 1, 1))
sketch9.addConstraint(Sketcher.Constraint("Coincident", 1, 2, 2, 1))
sketch9.addConstraint(Sketcher.Constraint("Coincident", 2, 2, 3, 1))
sketch9.addConstraint(Sketcher.Constraint("Coincident", 3, 2, 0, 1))
sketch9.addConstraint(Sketcher.Constraint("Coincident", 4, 2, 5, 1))
sketch9.addConstraint(Sketcher.Constraint("Coincident", 5, 2, 6, 1))
sketch9.addConstraint(Sketcher.Constraint("Coincident", 6, 2, 7, 1))
sketch9.addConstraint(Sketcher.Constraint("Coincident", 7, 2, 4, 1))
sketch9.addConstraint(Sketcher.Constraint("Coincident", 8, 2, 9, 1))
sketch9.addConstraint(Sketcher.Constraint("Coincident", 9, 2, 10, 1))
sketch9.addConstraint(Sketcher.Constraint("Coincident", 10, 2, 11, 1))
sketch9.addConstraint(Sketcher.Constraint("Coincident", 11, 2, 8, 1))
sketch9.addConstraint(Sketcher.Constraint("Coincident", 12, 2, 13, 1))
sketch9.addConstraint(Sketcher.Constraint("Coincident", 13, 2, 14, 1))
sketch9.addConstraint(Sketcher.Constraint("Coincident", 14, 2, 15, 1))
sketch9.addConstraint(Sketcher.Constraint("Coincident", 15, 2, 12, 1))
sketch9.addConstraint(Sketcher.Constraint("Coincident", 16, 2, 17, 1))
sketch9.addConstraint(Sketcher.Constraint("Coincident", 17, 2, 18, 1))
sketch9.addConstraint(Sketcher.Constraint("Coincident", 18, 2, 19, 1))
sketch9.addConstraint(Sketcher.Constraint("Coincident", 19, 2, 16, 1))
sketch9.addConstraint(Sketcher.Constraint("Coincident", 20, 2, 21, 1))
sketch9.addConstraint(Sketcher.Constraint("Coincident", 21, 2, 22, 1))
sketch9.addConstraint(Sketcher.Constraint("Coincident", 22, 2, 23, 1))
sketch9.addConstraint(Sketcher.Constraint("Coincident", 23, 2, 20, 1))
sketch9.addConstraint(Sketcher.Constraint("Coincident", 24, 2, 25, 1))
sketch9.addConstraint(Sketcher.Constraint("Coincident", 25, 2, 26, 1))
sketch9.addConstraint(Sketcher.Constraint("Coincident", 26, 2, 27, 1))
sketch9.addConstraint(Sketcher.Constraint("Coincident", 27, 2, 24, 1))
sketch9.addConstraint(Sketcher.Constraint("Coincident", 28, 2, 29, 1))
sketch9.addConstraint(Sketcher.Constraint("Coincident", 29, 2, 30, 1))
sketch9.addConstraint(Sketcher.Constraint("Coincident", 30, 2, 31, 1))
sketch9.addConstraint(Sketcher.Constraint("Coincident", 31, 2, 28, 1))
sketch9.addConstraint(Sketcher.Constraint("Coincident", 32, 2, 33, 1))
sketch9.addConstraint(Sketcher.Constraint("Coincident", 33, 2, 34, 1))
sketch9.addConstraint(Sketcher.Constraint("Coincident", 34, 2, 35, 1))
sketch9.addConstraint(Sketcher.Constraint("Coincident", 35, 2, 32, 1))
sketch9.addConstraint(Sketcher.Constraint("Coincident", 36, 2, 37, 1))
sketch9.addConstraint(Sketcher.Constraint("Coincident", 37, 2, 38, 1))
sketch9.addConstraint(Sketcher.Constraint("Coincident", 38, 2, 39, 1))
sketch9.addConstraint(Sketcher.Constraint("Coincident", 39, 2, 36, 1))
sketch9.addConstraint(Sketcher.Constraint("Coincident", 40, 2, 41, 1))
sketch9.addConstraint(Sketcher.Constraint("Coincident", 41, 2, 42, 1))
sketch9.addConstraint(Sketcher.Constraint("Coincident", 42, 2, 43, 1))
sketch9.addConstraint(Sketcher.Constraint("Coincident", 43, 2, 40, 1))
sketch9.addConstraint(Sketcher.Constraint("Coincident", 44, 2, 45, 1))
sketch9.addConstraint(Sketcher.Constraint("Coincident", 45, 2, 46, 1))
sketch9.addConstraint(Sketcher.Constraint("Coincident", 46, 2, 47, 1))
sketch9.addConstraint(Sketcher.Constraint("Coincident", 47, 2, 44, 1))
sketch9.addConstraint(Sketcher.Constraint("Vertical", 0))
sketch9.addConstraint(Sketcher.Constraint("Horizontal", 1))
sketch9.addConstraint(Sketcher.Constraint("Vertical", 2))
sketch9.addConstraint(Sketcher.Constraint("Horizontal", 3))
sketch9.addConstraint(Sketcher.Constraint("Vertical", 4))
sketch9.addConstraint(Sketcher.Constraint("Horizontal", 5))
sketch9.addConstraint(Sketcher.Constraint("Vertical", 6))
sketch9.addConstraint(Sketcher.Constraint("Horizontal", 7))
sketch9.addConstraint(Sketcher.Constraint("Vertical", 8))
sketch9.addConstraint(Sketcher.Constraint("Horizontal", 9))
sketch9.addConstraint(Sketcher.Constraint("Vertical", 10))
sketch9.addConstraint(Sketcher.Constraint("Horizontal", 11))
sketch9.addConstraint(Sketcher.Constraint("Vertical", 12))
sketch9.addConstraint(Sketcher.Constraint("Horizontal", 13))
sketch9.addConstraint(Sketcher.Constraint("Vertical", 14))
sketch9.addConstraint(Sketcher.Constraint("Horizontal", 15))
sketch9.addConstraint(Sketcher.Constraint("Vertical", 16))
sketch9.addConstraint(Sketcher.Constraint("Horizontal", 17))
sketch9.addConstraint(Sketcher.Constraint("Vertical", 18))
sketch9.addConstraint(Sketcher.Constraint("Horizontal", 19))
sketch9.addConstraint(Sketcher.Constraint("Vertical", 20))
sketch9.addConstraint(Sketcher.Constraint("Horizontal", 21))
sketch9.addConstraint(Sketcher.Constraint("Vertical", 22))
sketch9.addConstraint(Sketcher.Constraint("Horizontal", 23))
sketch9.addConstraint(Sketcher.Constraint("Vertical", 24))
sketch9.addConstraint(Sketcher.Constraint("Horizontal", 25))
sketch9.addConstraint(Sketcher.Constraint("Vertical", 26))
sketch9.addConstraint(Sketcher.Constraint("Horizontal", 27))
sketch9.addConstraint(Sketcher.Constraint("Vertical", 28))
sketch9.addConstraint(Sketcher.Constraint("Horizontal", 29))
sketch9.addConstraint(Sketcher.Constraint("Vertical", 30))
sketch9.addConstraint(Sketcher.Constraint("Horizontal", 31))
sketch9.addConstraint(Sketcher.Constraint("Vertical", 32))
sketch9.addConstraint(Sketcher.Constraint("Horizontal", 33))
sketch9.addConstraint(Sketcher.Constraint("Vertical", 34))
sketch9.addConstraint(Sketcher.Constraint("Horizontal", 35))
sketch9.addConstraint(Sketcher.Constraint("Vertical", 36))
sketch9.addConstraint(Sketcher.Constraint("Horizontal", 37))
sketch9.addConstraint(Sketcher.Constraint("Vertical", 38))
sketch9.addConstraint(Sketcher.Constraint("Horizontal", 39))
sketch9.addConstraint(Sketcher.Constraint("Vertical", 40))
sketch9.addConstraint(Sketcher.Constraint("Horizontal", 41))
sketch9.addConstraint(Sketcher.Constraint("Vertical", 42))
sketch9.addConstraint(Sketcher.Constraint("Horizontal", 43))
sketch9.addConstraint(Sketcher.Constraint("Vertical", 44))
sketch9.addConstraint(Sketcher.Constraint("Horizontal", 45))
sketch9.addConstraint(Sketcher.Constraint("Vertical", 46))
sketch9.addConstraint(Sketcher.Constraint("Horizontal", 47))
sketch9.addConstraint(Sketcher.Constraint("Horizontal", 1, 2, 4, 2))
sketch9.addConstraint(Sketcher.Constraint("Horizontal", 3, 2, 6, 2))
sketch9.addConstraint(Sketcher.Constraint("Horizontal", 9, 2, 12, 2))
sketch9.addConstraint(Sketcher.Constraint("Horizontal", 11, 2, 14, 2))
sketch9.addConstraint(Sketcher.Constraint("Horizontal", 17, 2, 20, 2))
sketch9.addConstraint(Sketcher.Constraint("Horizontal", 19, 2, 22, 2))
sketch9.addConstraint(Sketcher.Constraint("Horizontal", 29, 2, 32, 2))
sketch9.addConstraint(Sketcher.Constraint("Horizontal", 31, 2, 34, 2))
sketch9.addConstraint(Sketcher.Constraint("Horizontal", 25, 2, 36, 2))
sketch9.addConstraint(Sketcher.Constraint("Horizontal", 27, 2, 38, 2))
sketch9.addConstraint(Sketcher.Constraint("Horizontal", 41, 2, 44, 2))
sketch9.addConstraint(Sketcher.Constraint("Horizontal", 43, 2, 46, 2))
sketch9.addConstraint(Sketcher.Constraint("Vertical", 3, 2, 8, 2))
sketch9.addConstraint(Sketcher.Constraint("Vertical", 2, 2, 9, 2))
sketch9.addConstraint(Sketcher.Constraint("Vertical", 7, 2, 12, 2))
sketch9.addConstraint(Sketcher.Constraint("Vertical", 6, 2, 13, 2))
sketch9.addConstraint(Sketcher.Constraint("Vertical", 11, 2, 16, 2))
sketch9.addConstraint(Sketcher.Constraint("Vertical", 10, 2, 17, 2))
sketch9.addConstraint(Sketcher.Constraint("Vertical", 15, 2, 20, 2))
sketch9.addConstraint(Sketcher.Constraint("Vertical", 14, 2, 21, 2))
sketch9.addConstraint(Sketcher.Constraint("Vertical", 19, 2, 24, 2))
sketch9.addConstraint(Sketcher.Constraint("Vertical", 27, 2, 28, 2))
sketch9.addConstraint(Sketcher.Constraint("Vertical", 26, 2, 29, 2))
sketch9.addConstraint(Sketcher.Constraint("Vertical", 23, 2, 32, 2))
sketch9.addConstraint(Sketcher.Constraint("Vertical", 22, 2, 33, 2))
sketch9.addConstraint(Sketcher.Constraint("Vertical", 35, 2, 36, 2))
sketch9.addConstraint(Sketcher.Constraint("Vertical", 34, 2, 37, 2))
sketch9.addConstraint(Sketcher.Constraint("Vertical", 39, 2, 40, 2))
sketch9.addConstraint(Sketcher.Constraint("Vertical", 38, 2, 41, 2))
sketch9.addConstraint(Sketcher.Constraint("Vertical", 31, 2, 44, 2))
sketch9.addConstraint(Sketcher.Constraint("Vertical", 30, 2, 45, 2))
sketch9.addConstraint(Sketcher.Constraint("Equal", 3, 5))
sketch9.addConstraint(Sketcher.Constraint("Equal", 43, 0))
sketch9.addConstraint(Sketcher.Constraint("Equal", 6, 8))
sketch9.addConstraint(Sketcher.Constraint("Equal", 14, 16))
sketch9.addConstraint(Sketcher.Constraint("Equal", 22, 24))
sketch9.addConstraint(Sketcher.Constraint("Equal", 26, 28))
sketch9.addConstraint(Sketcher.Constraint("Equal", 38, 40))
sketch9.addConstraint(Sketcher.Constraint("DistanceX", 1, 1, 1, 2, 3.0))
sketch9.addConstraint(Sketcher.Constraint("DistanceX", 25, 1, 25, 2, 2.5))
sketch9.addConstraint(Sketcher.Constraint("DistanceX", -1, 1, 0, 2, 8.0))
sketch9.addConstraint(Sketcher.Constraint("DistanceY", -1, 1, 0, 2, 13.0))
sketch9.addConstraint(Sketcher.Constraint("DistanceX", -1, 1, 4, 2, 24.0))
sketch9.addConstraint(Sketcher.Constraint("DistanceY", -1, 1, 8, 2, 32.0))
sketch9.addConstraint(Sketcher.Constraint("DistanceY", -1, 1, 16, 2, 51.0))
sketch9.addConstraint(Sketcher.Constraint("DistanceY", -1, 1, 24, 2, 4.0))
sketch9.addConstraint(Sketcher.Constraint("DistanceY", -1, 1, 28, 2, 23.0))
sketch9.addConstraint(Sketcher.Constraint("DistanceY", -1, 1, 40, 2, 42.0))
pocket3 = body.newObject("PartDesign::Pocket", "Pocket002")
pocket3.Profile = sketch9
pocket3.Type = "ThroughAll"

sketch10 = body.newObject("Sketcher::SketchObject", "Sketch009")
sketch10.AttachmentSupport = (doc.getObject("XZ_Plane"), [""])
sketch10.MapMode = "FlatFace"
sketch10.addGeometry(Part.LineSegment(V(48, 20, 0), V(48, 0, 0)), False)
sketch10.addGeometry(Part.LineSegment(V(48, 0, 0), V(125, 0, 0)), False)
sketch10.addGeometry(Part.LineSegment(V(125, 0, 0), V(125, 20, 0)), False)
sketch10.addGeometry(Part.LineSegment(V(125, 20, 0), V(48, 20, 0)), False)
sketch10.addConstraint(Sketcher.Constraint("Coincident", 0, 2, 1, 1))
sketch10.addConstraint(Sketcher.Constraint("Coincident", 1, 2, 2, 1))
sketch10.addConstraint(Sketcher.Constraint("Coincident", 2, 2, 3, 1))
sketch10.addConstraint(Sketcher.Constraint("Coincident", 3, 2, 0, 1))
sketch10.addConstraint(Sketcher.Constraint("Vertical", 0))
sketch10.addConstraint(Sketcher.Constraint("Horizontal", 1))
sketch10.addConstraint(Sketcher.Constraint("Vertical", 2))
sketch10.addConstraint(Sketcher.Constraint("Horizontal", 3))
sketch10.addConstraint(Sketcher.Constraint("PointOnObject", 0, 2, -1))
sketch10.addConstraint(Sketcher.Constraint("DistanceX", 1, 1, 1, 2, 77.0))
sketch10.addConstraint(Sketcher.Constraint("DistanceY", 0, 2, 0, 1, 20.5))
sketch10.addConstraint(Sketcher.Constraint("DistanceX", -1, 1, 0, 2, 48.0))
pad7 = body.newObject("PartDesign::Pad", "Pad006")
pad7.Profile = sketch10
pad7.Length = 3.75
pad7.Reversed = True

sketch11 = body.newObject("Sketcher::SketchObject", "Sketch010")
sketch11.AttachmentSupport = (doc.getObject("XZ_Plane"), [""])
sketch11.MapMode = "FlatFace"
sketch11.addGeometry(Part.Circle(V(87, 13.1, 0), V(0, 0, 1), 1.3), False)
sketch11.addConstraint(Sketcher.Constraint("Diameter", 0, 2.65))
sketch11.addConstraint(Sketcher.Constraint("DistanceX", -1, 1, 0, 3, 87.03))
sketch11.addConstraint(Sketcher.Constraint("DistanceY", -1, 1, 0, 3, 13.12))
pocket4 = body.newObject("PartDesign::Pocket", "Pocket003")
pocket4.Profile = sketch11
pocket4.Type = "ThroughAll"

doc.recompute()
